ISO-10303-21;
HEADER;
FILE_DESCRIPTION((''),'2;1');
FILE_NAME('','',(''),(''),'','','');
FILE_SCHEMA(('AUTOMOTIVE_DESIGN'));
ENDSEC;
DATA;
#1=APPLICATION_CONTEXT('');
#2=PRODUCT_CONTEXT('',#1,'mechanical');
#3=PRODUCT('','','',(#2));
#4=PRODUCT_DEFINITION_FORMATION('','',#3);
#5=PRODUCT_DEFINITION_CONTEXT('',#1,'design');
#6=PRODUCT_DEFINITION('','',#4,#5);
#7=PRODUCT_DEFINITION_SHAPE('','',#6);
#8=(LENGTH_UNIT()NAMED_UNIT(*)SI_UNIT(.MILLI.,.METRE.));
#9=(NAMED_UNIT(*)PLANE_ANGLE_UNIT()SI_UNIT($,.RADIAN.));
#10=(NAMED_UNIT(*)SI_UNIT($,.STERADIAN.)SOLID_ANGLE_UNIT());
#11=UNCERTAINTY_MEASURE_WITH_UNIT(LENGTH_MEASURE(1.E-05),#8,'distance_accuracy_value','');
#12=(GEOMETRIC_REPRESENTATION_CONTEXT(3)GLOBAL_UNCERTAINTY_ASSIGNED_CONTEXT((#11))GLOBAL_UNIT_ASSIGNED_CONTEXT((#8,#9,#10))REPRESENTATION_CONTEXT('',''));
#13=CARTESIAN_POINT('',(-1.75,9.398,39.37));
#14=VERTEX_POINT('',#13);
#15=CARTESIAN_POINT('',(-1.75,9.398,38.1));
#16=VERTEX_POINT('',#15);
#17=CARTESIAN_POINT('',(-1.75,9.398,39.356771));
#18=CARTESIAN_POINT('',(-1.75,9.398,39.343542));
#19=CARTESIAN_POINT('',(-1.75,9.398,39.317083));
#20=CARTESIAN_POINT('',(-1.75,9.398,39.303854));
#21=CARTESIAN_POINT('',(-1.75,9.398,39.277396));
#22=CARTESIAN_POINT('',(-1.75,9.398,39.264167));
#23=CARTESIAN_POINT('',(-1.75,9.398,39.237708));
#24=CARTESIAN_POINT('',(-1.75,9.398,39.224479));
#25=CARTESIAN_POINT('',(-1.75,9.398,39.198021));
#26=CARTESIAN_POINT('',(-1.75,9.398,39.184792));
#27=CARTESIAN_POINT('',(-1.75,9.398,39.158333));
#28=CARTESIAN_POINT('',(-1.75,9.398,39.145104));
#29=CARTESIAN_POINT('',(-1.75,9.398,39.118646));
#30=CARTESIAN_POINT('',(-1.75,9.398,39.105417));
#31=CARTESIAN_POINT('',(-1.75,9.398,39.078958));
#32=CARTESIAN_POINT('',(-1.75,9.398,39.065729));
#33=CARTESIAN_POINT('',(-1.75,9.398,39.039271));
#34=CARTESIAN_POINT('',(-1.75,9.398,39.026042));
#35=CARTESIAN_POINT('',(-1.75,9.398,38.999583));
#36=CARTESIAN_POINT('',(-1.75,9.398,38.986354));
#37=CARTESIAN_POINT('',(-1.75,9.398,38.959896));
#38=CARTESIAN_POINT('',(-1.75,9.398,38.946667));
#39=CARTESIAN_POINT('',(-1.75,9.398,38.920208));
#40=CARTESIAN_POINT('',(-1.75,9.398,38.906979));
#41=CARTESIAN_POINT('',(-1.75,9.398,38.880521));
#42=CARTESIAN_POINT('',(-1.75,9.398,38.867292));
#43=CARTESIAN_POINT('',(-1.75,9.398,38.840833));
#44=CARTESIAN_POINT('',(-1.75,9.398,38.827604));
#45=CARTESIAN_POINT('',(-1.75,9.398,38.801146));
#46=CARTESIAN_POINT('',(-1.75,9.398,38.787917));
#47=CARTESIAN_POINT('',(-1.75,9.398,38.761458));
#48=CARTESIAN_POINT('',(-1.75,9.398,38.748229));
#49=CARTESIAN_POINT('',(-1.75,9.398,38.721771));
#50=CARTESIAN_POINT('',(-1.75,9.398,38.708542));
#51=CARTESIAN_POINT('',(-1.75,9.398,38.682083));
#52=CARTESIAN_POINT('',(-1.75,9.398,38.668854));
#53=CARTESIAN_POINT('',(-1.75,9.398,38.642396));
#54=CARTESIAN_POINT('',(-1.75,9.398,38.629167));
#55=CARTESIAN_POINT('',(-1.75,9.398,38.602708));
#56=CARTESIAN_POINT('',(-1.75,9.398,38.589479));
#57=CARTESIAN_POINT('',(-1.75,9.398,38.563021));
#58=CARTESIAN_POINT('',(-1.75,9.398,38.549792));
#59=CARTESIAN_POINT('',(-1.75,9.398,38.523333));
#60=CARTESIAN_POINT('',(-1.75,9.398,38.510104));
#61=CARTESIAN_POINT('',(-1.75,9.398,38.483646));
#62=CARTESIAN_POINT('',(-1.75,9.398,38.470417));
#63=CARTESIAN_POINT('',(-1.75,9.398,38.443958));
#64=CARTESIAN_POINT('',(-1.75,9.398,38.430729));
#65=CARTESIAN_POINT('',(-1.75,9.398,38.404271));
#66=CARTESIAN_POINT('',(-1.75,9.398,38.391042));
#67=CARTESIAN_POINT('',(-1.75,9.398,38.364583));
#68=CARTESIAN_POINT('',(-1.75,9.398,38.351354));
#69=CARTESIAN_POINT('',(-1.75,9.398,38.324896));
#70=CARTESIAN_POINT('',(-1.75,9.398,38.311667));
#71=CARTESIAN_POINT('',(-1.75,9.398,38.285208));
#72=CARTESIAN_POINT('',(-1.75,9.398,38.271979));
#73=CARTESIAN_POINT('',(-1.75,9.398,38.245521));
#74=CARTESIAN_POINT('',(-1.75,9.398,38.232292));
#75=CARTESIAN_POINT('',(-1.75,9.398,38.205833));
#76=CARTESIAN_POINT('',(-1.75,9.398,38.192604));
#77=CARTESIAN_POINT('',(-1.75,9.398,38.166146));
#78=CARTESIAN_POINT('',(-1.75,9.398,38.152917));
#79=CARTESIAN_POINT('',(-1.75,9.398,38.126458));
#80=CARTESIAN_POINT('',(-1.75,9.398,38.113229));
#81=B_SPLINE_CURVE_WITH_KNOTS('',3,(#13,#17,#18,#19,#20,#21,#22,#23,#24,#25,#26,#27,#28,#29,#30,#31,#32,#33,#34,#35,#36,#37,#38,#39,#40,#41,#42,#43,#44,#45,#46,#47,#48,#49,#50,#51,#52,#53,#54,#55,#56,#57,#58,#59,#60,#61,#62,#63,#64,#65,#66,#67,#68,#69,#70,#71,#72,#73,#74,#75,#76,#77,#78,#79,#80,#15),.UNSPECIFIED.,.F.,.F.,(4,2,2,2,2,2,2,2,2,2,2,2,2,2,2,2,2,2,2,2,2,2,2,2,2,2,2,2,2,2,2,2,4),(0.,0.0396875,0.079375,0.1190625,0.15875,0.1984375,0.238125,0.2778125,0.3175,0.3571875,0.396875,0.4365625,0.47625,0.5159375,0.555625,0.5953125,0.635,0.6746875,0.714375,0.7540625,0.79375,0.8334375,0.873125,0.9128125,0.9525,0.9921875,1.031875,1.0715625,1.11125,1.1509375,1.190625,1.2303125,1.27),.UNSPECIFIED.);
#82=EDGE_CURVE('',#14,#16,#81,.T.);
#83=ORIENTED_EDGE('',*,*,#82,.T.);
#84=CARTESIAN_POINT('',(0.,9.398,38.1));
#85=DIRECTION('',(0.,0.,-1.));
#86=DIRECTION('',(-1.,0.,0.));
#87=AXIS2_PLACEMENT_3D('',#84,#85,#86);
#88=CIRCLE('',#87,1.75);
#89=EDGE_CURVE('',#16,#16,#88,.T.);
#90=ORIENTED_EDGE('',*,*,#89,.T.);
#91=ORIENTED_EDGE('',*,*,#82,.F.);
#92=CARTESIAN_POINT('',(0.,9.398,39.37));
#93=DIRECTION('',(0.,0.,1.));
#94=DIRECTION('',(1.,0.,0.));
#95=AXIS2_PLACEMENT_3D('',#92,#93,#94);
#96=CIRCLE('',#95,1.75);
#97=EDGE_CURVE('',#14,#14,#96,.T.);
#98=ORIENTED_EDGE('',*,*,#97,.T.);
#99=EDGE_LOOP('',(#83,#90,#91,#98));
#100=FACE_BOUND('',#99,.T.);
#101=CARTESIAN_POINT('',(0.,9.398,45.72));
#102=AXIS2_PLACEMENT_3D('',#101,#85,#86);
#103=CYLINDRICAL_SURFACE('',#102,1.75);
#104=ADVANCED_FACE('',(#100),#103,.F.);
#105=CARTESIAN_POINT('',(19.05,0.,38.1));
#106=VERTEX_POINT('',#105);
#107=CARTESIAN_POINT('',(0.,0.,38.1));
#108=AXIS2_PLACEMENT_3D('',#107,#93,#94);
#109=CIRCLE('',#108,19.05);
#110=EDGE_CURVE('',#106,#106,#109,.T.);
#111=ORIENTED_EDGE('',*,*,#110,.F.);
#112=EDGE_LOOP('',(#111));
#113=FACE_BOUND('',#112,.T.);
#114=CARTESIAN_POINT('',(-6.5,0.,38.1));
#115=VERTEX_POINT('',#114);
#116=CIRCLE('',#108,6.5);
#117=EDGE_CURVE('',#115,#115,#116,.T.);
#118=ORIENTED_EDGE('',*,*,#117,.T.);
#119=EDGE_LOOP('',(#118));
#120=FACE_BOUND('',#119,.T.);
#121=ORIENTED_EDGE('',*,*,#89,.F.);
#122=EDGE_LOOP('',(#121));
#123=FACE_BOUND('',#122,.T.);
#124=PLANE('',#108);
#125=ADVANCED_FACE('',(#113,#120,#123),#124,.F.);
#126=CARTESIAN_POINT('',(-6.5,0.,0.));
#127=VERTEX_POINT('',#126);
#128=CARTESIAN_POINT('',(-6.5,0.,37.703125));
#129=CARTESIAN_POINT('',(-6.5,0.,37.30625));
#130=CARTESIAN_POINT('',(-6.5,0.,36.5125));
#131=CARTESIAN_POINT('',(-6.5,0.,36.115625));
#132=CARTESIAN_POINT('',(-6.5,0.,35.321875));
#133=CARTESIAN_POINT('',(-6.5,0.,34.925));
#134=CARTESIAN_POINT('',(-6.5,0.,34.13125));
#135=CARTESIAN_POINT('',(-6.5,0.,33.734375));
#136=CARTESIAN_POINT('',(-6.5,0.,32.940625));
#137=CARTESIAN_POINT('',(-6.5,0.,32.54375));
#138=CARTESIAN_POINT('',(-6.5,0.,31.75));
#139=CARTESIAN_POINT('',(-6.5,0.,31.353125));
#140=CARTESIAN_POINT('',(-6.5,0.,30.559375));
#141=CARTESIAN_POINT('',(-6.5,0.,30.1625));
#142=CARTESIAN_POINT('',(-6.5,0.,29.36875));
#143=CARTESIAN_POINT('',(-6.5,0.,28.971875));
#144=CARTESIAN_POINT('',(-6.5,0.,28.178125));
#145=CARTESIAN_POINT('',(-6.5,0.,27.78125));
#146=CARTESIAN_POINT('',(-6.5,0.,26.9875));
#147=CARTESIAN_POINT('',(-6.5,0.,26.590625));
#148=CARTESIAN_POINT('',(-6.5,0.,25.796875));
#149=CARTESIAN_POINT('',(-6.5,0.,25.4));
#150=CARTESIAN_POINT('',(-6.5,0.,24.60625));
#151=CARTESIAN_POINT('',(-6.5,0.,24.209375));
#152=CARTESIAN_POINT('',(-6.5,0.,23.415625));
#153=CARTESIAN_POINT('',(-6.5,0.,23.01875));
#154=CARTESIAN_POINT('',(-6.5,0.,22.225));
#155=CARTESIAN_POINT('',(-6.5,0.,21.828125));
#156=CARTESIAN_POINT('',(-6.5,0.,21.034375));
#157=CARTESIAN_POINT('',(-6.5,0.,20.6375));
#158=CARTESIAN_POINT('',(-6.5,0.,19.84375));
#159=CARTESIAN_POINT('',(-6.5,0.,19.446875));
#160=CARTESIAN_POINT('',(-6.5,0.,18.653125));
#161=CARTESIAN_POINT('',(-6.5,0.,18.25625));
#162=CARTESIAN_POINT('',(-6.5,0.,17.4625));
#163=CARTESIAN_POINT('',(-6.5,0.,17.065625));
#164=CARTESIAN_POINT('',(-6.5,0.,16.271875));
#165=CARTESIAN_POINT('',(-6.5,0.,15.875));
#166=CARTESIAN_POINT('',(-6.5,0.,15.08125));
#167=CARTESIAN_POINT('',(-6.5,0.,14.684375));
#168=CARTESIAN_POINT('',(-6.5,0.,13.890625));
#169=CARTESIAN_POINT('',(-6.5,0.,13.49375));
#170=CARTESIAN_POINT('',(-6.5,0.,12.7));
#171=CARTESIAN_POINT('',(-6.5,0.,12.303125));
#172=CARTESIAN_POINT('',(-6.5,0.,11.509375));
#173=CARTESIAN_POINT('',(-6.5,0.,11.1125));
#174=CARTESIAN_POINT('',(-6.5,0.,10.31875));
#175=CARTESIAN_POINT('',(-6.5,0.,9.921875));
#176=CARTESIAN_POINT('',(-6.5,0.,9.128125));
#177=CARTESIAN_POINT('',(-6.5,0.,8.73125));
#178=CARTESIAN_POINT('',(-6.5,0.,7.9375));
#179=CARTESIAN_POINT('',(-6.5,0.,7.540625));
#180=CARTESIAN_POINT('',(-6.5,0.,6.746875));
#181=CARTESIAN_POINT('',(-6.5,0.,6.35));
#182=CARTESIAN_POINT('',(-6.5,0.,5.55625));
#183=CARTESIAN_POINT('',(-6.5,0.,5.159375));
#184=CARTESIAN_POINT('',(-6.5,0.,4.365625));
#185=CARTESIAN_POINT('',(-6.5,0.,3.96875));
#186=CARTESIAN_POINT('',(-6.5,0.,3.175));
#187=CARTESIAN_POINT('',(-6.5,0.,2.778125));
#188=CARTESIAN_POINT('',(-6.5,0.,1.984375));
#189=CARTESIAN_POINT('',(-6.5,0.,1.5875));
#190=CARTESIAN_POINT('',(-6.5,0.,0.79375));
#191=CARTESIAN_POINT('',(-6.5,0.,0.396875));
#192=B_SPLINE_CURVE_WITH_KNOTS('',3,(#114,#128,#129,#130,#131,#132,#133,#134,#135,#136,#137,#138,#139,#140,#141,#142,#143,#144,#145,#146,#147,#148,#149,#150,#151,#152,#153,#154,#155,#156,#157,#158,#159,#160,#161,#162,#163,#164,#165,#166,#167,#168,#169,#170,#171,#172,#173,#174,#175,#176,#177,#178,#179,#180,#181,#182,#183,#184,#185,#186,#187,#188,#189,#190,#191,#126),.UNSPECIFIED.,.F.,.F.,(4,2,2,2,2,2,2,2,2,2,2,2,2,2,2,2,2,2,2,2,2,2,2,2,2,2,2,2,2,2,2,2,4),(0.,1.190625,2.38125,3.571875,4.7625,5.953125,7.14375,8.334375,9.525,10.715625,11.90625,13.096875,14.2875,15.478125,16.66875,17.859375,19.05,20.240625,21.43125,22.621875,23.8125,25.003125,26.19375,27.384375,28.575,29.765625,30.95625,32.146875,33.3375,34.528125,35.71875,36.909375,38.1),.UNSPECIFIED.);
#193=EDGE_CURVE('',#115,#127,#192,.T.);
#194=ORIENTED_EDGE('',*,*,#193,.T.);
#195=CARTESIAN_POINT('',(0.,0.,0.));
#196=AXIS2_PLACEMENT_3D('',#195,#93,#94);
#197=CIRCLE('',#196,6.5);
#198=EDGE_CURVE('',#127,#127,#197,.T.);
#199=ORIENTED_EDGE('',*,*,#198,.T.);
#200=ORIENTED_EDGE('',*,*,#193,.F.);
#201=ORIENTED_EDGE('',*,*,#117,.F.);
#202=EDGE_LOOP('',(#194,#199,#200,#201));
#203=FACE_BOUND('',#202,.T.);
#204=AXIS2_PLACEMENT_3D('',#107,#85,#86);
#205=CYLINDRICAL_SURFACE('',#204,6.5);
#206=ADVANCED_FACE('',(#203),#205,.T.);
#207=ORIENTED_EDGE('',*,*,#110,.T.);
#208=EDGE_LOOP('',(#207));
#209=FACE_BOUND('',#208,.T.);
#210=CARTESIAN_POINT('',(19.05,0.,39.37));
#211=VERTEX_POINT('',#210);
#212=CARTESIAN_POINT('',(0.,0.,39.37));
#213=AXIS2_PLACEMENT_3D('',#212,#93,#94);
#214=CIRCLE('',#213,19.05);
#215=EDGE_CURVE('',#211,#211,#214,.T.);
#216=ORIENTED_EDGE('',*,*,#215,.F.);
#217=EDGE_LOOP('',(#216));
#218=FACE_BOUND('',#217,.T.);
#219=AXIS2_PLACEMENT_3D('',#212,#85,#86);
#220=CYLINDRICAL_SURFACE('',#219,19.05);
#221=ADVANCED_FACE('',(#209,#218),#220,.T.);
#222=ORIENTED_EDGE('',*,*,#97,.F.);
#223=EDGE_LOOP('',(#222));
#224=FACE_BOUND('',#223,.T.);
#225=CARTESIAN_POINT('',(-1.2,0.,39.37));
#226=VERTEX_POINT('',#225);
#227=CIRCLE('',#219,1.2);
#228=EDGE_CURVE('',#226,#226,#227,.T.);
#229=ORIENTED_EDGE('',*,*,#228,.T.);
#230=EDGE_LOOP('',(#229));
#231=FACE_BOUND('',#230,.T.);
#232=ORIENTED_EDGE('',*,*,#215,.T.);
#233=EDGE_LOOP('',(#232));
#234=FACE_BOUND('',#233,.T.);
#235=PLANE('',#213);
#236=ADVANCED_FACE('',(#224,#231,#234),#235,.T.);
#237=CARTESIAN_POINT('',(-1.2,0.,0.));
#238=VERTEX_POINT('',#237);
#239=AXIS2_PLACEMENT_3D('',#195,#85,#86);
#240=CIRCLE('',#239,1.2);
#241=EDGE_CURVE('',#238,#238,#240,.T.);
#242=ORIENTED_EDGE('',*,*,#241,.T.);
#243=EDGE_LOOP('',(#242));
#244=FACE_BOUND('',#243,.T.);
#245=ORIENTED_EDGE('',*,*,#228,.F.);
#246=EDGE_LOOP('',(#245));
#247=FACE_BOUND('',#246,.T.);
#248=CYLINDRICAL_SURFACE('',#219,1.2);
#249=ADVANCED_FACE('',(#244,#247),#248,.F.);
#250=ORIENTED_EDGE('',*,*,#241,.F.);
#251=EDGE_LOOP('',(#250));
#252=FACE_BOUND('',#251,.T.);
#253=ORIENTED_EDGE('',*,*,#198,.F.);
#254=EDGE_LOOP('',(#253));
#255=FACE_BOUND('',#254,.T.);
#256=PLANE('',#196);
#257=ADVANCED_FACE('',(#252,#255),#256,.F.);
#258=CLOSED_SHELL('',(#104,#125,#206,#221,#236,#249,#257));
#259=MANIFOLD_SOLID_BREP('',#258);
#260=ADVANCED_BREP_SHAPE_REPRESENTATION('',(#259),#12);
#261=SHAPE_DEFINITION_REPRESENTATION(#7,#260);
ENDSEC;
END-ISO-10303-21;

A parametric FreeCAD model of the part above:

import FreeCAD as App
import Part
import Sketcher
Q = App.Units.Quantity

doc = App.newDocument("Part")
body = doc.addObject("PartDesign::Body", "Body")

# Sketch on XY plane
sketch1 = body.newObject("Sketcher::SketchObject", "Sketch")
sketch1.AttachmentSupport = (doc.getObject("XY_Plane"), [""])
sketch1.MapMode = "FlatFace"
sketch1.addGeometry(Part.Circle(App.Vector(0, 0, 0), App.Vector(0, 0, 1), 6), False)
sketch1.addConstraint(Sketcher.Constraint("Coincident", 0, 3, -1, 1))
sketch1.addConstraint(Sketcher.Constraint("Diameter", 0, Q("13 mm")))
pad1 = body.newObject("PartDesign::Pad", "Pad")
pad1.Profile = sketch1
pad1.Length = 38.1

# Sketch on XY plane
sketch2 = body.newObject("Sketcher::SketchObject", "Sketch001")
sketch2.AttachmentSupport = (doc.getObject("XY_Plane"), [""])
sketch2.MapMode = "FlatFace"
sketch2.AttachmentOffset = App.Placement(App.Vector(0, 0, 38.1), App.Rotation())
sketch2.addGeometry(Part.Circle(App.Vector(0, 0, 0), App.Vector(0, 0, 1), 19), False)
sketch2.addConstraint(Sketcher.Constraint("Coincident", 0, 3, -1, 1))
sketch2.addConstraint(Sketcher.Constraint("Diameter", 0, Q("38.1 mm")))
pad2 = body.newObject("PartDesign::Pad", "Pad001")
pad2.Profile = sketch2
pad2.Length = 1.27

# Sketch on XY plane
sketch3 = body.newObject("Sketcher::SketchObject", "Sketch002")
sketch3.AttachmentSupport = (doc.getObject("XY_Plane"), [""])
sketch3.MapMode = "FlatFace"
sketch3.addGeometry(Part.Circle(App.Vector(0, 0, 0), App.Vector(0, 0, 1), 1.2), False)
sketch3.addConstraint(Sketcher.Constraint("Coincident", 0, 3, -1, 1))
sketch3.addConstraint(Sketcher.Constraint("Diameter", 0, Q("2.4 mm")))
pocket1 = body.newObject("PartDesign::Pocket", "Pocket")
pocket1.Profile = sketch3
pocket1.Type = "ThroughAll"
pocket1.Reversed = True

# Sketch on XY plane
sketch4 = body.newObject("Sketcher::SketchObject", "Sketch003")
sketch4.AttachmentSupport = (doc.getObject("XY_Plane"), [""])
sketch4.MapMode = "FlatFace"
sketch4.AttachmentOffset = App.Placement(App.Vector(0, 0, 38.1), App.Rotation())
sketch4.addGeometry(Part.Circle(App.Vector(0, 9.4, 0), App.Vector(0, 0, 1), 1.8), False)
sketch4.addConstraint(Sketcher.Constraint("PointOnObject", 0, 3, -2))
sketch4.addConstraint(Sketcher.Constraint("Diameter", 0, Q("3.5 mm")))
sketch4.addConstraint(Sketcher.Constraint("DistanceY", -1, 1, 0, 3, Q("9.398 mm")))
pocket2 = body.newObject("PartDesign::Pocket", "Pocket001")
pocket2.Profile = sketch4
pocket2.Length = 7.62
pocket2.Reversed = True

doc.recompute()
